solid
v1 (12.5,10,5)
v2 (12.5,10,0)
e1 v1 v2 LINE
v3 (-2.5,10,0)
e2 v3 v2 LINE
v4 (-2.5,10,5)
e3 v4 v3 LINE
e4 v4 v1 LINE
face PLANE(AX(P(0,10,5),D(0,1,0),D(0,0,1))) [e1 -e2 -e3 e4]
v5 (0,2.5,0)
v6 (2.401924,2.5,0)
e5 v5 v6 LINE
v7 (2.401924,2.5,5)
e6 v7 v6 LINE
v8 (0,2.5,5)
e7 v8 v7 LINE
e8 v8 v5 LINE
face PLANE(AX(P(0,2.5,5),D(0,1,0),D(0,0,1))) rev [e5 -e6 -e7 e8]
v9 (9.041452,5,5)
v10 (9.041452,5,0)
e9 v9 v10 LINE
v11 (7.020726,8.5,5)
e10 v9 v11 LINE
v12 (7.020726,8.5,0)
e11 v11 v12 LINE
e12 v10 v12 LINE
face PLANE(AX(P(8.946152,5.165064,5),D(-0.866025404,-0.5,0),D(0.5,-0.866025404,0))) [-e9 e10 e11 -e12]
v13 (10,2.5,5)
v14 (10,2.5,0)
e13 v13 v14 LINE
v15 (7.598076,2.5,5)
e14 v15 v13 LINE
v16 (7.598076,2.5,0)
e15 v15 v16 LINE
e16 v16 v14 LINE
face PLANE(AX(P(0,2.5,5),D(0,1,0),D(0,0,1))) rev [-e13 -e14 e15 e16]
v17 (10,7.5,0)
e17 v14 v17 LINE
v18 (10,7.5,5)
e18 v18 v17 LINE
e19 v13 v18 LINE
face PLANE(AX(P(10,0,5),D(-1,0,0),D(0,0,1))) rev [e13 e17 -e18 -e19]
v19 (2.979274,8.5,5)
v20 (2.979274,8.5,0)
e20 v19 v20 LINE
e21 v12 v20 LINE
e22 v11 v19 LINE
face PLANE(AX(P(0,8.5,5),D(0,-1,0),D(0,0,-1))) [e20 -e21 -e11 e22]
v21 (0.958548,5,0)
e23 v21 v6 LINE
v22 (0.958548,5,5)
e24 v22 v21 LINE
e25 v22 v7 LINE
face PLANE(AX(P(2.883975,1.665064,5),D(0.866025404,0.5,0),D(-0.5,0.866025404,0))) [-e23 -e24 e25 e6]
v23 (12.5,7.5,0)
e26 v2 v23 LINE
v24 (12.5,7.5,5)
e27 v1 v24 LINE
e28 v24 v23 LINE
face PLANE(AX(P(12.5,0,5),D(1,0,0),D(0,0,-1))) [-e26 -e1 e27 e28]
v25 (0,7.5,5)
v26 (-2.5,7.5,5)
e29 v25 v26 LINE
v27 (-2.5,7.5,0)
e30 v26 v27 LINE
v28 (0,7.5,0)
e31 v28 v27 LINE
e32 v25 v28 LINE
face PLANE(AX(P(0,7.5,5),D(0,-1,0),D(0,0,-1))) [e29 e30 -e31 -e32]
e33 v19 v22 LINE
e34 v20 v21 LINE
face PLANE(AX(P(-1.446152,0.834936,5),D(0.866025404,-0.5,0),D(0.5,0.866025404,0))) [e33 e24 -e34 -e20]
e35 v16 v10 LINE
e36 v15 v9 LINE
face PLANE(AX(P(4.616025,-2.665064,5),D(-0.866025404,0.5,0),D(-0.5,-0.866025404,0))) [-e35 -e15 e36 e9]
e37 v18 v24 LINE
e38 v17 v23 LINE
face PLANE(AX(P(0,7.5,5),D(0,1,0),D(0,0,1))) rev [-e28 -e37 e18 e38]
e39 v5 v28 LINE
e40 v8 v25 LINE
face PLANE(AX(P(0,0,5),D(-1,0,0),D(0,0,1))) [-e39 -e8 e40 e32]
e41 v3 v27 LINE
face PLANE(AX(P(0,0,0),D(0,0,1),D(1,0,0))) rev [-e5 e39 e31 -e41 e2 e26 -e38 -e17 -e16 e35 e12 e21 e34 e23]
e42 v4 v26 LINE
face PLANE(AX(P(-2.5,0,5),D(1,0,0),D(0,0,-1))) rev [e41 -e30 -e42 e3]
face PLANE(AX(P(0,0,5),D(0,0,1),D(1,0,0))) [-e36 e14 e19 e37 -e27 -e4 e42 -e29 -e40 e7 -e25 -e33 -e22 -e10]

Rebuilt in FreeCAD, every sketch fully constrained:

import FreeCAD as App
import Part
import Sketcher
from FreeCAD import Vector
Q = App.Units.Quantity

doc = App.newDocument("Part")
params = doc.addObject("Spreadsheet::Sheet", "Params")
for row, (alias, value) in enumerate([
    ("sketch1_width", "15 mm"),
    ("sketch1_height", "5 mm"),
    ("sketch1_width2", "2.5 mm"),
    ("pad1_length", "5 mm"),
], start=1):
    params.set(f"A{row}", alias)
    params.set(f"B{row}", "=" + value)
    params.setAlias(f"B{row}", alias)

body = doc.addObject("PartDesign::Body", "Body")

sketch1 = body.newObject("Sketcher::SketchObject", "Sketch")
sketch1.AttachmentSupport = (doc.getObject("XY_Plane"), [""])
sketch1.MapMode = "FlatFace"
sketch1.addGeometry([
    Part.LineSegment(Vector(0, 7.5, 0), Vector(0, 2.5, 0)),
    Part.LineSegment(Vector(0, 2.5, 0), Vector(2.401924, 2.5, 0)),
    Part.LineSegment(Vector(2.401924, 2.5, 0), Vector(0.958548, 5, 0)),
    Part.LineSegment(Vector(0.958548, 5, 0), Vector(2.979274, 8.5, 0)),
    Part.LineSegment(Vector(2.979274, 8.5, 0), Vector(7.020726, 8.5, 0)),
    Part.LineSegment(Vector(7.020726, 8.5, 0), Vector(9.041452, 5, 0)),
    Part.LineSegment(Vector(9.041452, 5, 0), Vector(7.598076, 2.5, 0)),
    Part.LineSegment(Vector(7.598076, 2.5, 0), Vector(10, 2.5, 0)),
    Part.LineSegment(Vector(10, 2.5, 0), Vector(10, 7.5, 0)),
    Part.LineSegment(Vector(10, 7.5, 0), Vector(12.5, 7.5, 0)),
    Part.LineSegment(Vector(12.5, 7.5, 0), Vector(12.5, 10, 0)),
    Part.LineSegment(Vector(12.5, 10, 0), Vector(-2.5, 10, 0)),
    Part.LineSegment(Vector(-2.5, 10, 0), Vector(-2.5, 7.5, 0)),
    Part.LineSegment(Vector(-2.5, 7.5, 0), Vector(0, 7.5, 0)),
], False)
sketch1.addConstraint([
    Sketcher.Constraint("Coincident", 0, 2, 1, 1),
    Sketcher.Constraint("Coincident", 1, 2, 2, 1),
    Sketcher.Constraint("Coincident", 2, 2, 3, 1),
    Sketcher.Constraint("Coincident", 3, 2, 4, 1),
    Sketcher.Constraint("Coincident", 4, 2, 5, 1),
    Sketcher.Constraint("Coincident", 5, 2, 6, 1),
    Sketcher.Constraint("Coincident", 6, 2, 7, 1),
    Sketcher.Constraint("Coincident", 7, 2, 8, 1),
    Sketcher.Constraint("Coincident", 8, 2, 9, 1),
    Sketcher.Constraint("Coincident", 9, 2, 10, 1),
    Sketcher.Constraint("Coincident", 10, 2, 11, 1),
    Sketcher.Constraint("Coincident", 11, 2, 12, 1),
    Sketcher.Constraint("Coincident", 12, 2, 13, 1),
    Sketcher.Constraint("Coincident", 13, 2, 0, 1),
    Sketcher.Constraint("Vertical", 0),
    Sketcher.Constraint("Horizontal", 1),
    Sketcher.Constraint("Horizontal", 4),
    Sketcher.Constraint("Horizontal", 7),
    Sketcher.Constraint("Vertical", 8),
    Sketcher.Constraint("Horizontal", 9),
    Sketcher.Constraint("Vertical", 10),
    Sketcher.Constraint("Horizontal", 11),
    Sketcher.Constraint("Vertical", 12),
    Sketcher.Constraint("Horizontal", 13),
    Sketcher.Constraint("PointOnObject", 0, 2, -2),
    Sketcher.Constraint("Parallel", 2, 5),
    Sketcher.Constraint("Parallel", 3, 6),
    Sketcher.Constraint("Horizontal", 2, 2, 5, 2),
    Sketcher.Constraint("Horizontal", 1, 2, 6, 2),
    Sketcher.Constraint("Horizontal", 9, 2, 12, 2),
    Sketcher.Constraint("Equal", 1, 7),
    Sketcher.Constraint("Equal", 9, 13),
    Sketcher.Constraint("Equal", 13, 10),
    Sketcher.Constraint("Equal", 3, 5),
    Sketcher.Constraint("DistanceX", 11, 2, 11, 1, Q("15 mm")),
    Sketcher.Constraint("DistanceY", 0, 2, 0, 1, Q("5 mm")),
    Sketcher.Constraint("Angle", 2, Q("120 deg")),
    Sketcher.Constraint("DistanceX", 9, 1, 9, 2, Q("2.5 mm")),
    Sketcher.Constraint("DistanceY", -1, 1, 2, 2, Q("5 mm")),
    Sketcher.Constraint("DistanceY", -1, 1, 10, 2, Q("10 mm")),
    Sketcher.Constraint("DistanceY", 1, 2, 3, 2, Q("6 mm")),
    Sketcher.Constraint("DistanceX", 4, 1, 4, 2, Q("4.041452 mm")),
])
sketch1.setExpression("Constraints[34]", "Params.sketch1_width")
sketch1.setExpression("Constraints[35]", "Params.sketch1_height")
sketch1.setExpression("Constraints[37]", "Params.sketch1_width2")
pad1 = body.newObject("PartDesign::Pad", "Pad")
pad1.Profile = sketch1
pad1.setExpression("Length", "Params.pad1_length")

doc.recompute()
